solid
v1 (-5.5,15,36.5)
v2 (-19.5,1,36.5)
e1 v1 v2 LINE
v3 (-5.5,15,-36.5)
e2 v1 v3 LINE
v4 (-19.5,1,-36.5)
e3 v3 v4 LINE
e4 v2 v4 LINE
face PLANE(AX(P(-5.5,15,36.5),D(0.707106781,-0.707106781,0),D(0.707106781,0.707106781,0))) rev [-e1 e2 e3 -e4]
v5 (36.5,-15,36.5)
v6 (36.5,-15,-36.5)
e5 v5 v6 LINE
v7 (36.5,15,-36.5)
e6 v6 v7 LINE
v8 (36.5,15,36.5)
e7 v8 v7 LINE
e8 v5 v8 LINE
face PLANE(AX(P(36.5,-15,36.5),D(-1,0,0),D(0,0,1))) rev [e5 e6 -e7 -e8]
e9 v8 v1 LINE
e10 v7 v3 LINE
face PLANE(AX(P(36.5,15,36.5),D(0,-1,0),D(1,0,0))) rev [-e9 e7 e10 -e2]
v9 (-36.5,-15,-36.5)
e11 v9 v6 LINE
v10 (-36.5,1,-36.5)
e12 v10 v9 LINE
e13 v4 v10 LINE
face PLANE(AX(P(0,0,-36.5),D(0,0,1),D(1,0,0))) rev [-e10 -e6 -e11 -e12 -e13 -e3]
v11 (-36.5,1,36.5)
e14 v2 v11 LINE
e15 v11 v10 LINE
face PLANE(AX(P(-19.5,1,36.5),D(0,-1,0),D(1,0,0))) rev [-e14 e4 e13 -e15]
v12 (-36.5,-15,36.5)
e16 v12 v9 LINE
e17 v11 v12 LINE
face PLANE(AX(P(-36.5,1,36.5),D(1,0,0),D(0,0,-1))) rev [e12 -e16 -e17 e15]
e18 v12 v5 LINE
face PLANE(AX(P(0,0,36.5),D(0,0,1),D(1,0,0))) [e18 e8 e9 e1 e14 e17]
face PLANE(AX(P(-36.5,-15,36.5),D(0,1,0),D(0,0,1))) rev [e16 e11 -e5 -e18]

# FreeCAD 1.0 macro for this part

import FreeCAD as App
import Part
import Sketcher

V = App.Vector


def add_polygon(sketch, points):
    """Adds a closed chain of lines whose ends are joined by coincident constraints."""
    first, n = sketch.GeometryCount, len(points)
    for a, b in zip(points, points[1:] + points[:1]):
        sketch.addGeometry(Part.LineSegment(App.Vector(*a, 0), App.Vector(*b, 0)), False)
    for i in range(n):
        sketch.addConstraint(Sketcher.Constraint("Coincident", first + i, 2, first + (i + 1) % n, 1))

doc = App.newDocument("Part")
params = doc.addObject("Spreadsheet::Sheet", "Params")
for row, (alias, value) in enumerate([
    ("sketch1_width", "73 mm"),
    ("sketch1_width2", "42 mm"),
    ("sketch1_width3", "17 mm"),
    ("sketch1_height", "30 mm"),
    ("sketch1_height2", "16 mm"),
    ("pad1_length", "73 mm"),
], start=1):
    params.set(f"A{row}", alias)
    params.set(f"B{row}", "=" + value)
    params.setAlias(f"B{row}", alias)

body = doc.addObject("PartDesign::Body", "Body")

# Sketch on XY plane
sketch1 = body.newObject("Sketcher::SketchObject", "Sketch")
sketch1.AttachmentSupport = (doc.getObject("XY_Plane"), [""])
sketch1.MapMode = "FlatFace"
add_polygon(sketch1, [(-36, -15), (36, -15), (36, 15), (-6, 15), (-20, 1), (-36, 1)])  # lines 0-5
sketch1.addConstraint(Sketcher.Constraint("Horizontal", 0))
sketch1.addConstraint(Sketcher.Constraint("Vertical", 1))
sketch1.addConstraint(Sketcher.Constraint("Horizontal", 2))
sketch1.addConstraint(Sketcher.Constraint("Horizontal", 4))
sketch1.addConstraint(Sketcher.Constraint("Vertical", 5))
sketch1.addConstraint(Sketcher.Constraint("Symmetric", 1, 2, 5, 2, -1, 1))
sketch1.addConstraint(Sketcher.Constraint("DistanceX", 0, 1, 0, 2, 73.0))
sketch1.addConstraint(Sketcher.Constraint("DistanceX", 2, 2, 2, 1, 42.0))
sketch1.addConstraint(Sketcher.Constraint("DistanceX", 4, 2, 4, 1, 17.0))
sketch1.addConstraint(Sketcher.Constraint("DistanceY", 1, 1, 1, 2, 30.0))
sketch1.addConstraint(Sketcher.Constraint("DistanceY", 5, 2, 5, 1, 16.0))
sketch1.setExpression("Constraints[12]", "Params.sketch1_width")
sketch1.setExpression("Constraints[13]", "Params.sketch1_width2")
sketch1.setExpression("Constraints[14]", "Params.sketch1_width3")
sketch1.setExpression("Constraints[15]", "Params.sketch1_height")
sketch1.setExpression("Constraints[16]", "Params.sketch1_height2")
pad1 = body.newObject("PartDesign::Pad", "Pad")
pad1.Profile = sketch1
pad1.setExpression("Length", "Params.pad1_length")
pad1.Midplane = True

doc.recompute()
